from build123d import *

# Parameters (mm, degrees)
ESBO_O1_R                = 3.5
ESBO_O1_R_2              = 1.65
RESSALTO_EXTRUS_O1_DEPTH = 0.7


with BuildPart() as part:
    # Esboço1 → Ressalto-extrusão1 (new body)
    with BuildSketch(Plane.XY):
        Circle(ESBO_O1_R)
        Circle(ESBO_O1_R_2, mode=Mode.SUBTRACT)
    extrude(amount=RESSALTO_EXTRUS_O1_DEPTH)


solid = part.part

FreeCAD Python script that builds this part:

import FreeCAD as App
import Part
import Sketcher

doc = App.newDocument("Part")
body = doc.addObject("PartDesign::Body", "Body")

# Sketch on XY plane
sketch1 = body.newObject("Sketcher::SketchObject", "Sketch")
sketch1.AttachmentSupport = (doc.getObject("XY_Plane"), [""])
sketch1.MapMode = "FlatFace"
sketch1.addGeometry([
    Part.Circle(App.Vector(0, 0, 0), App.Vector(0, 0, 1), 3.5),
    Part.Circle(App.Vector(0, 0, 0), App.Vector(0, 0, 1), 1.6),
], False)
sketch1.addConstraint([
    Sketcher.Constraint("Coincident", 0, 3, -1, 1),
    Sketcher.Constraint("Coincident", 1, 3, -1, 1),
    Sketcher.Constraint("Diameter", 0, 7.0),
    Sketcher.Constraint("Diameter", 1, 3.3),
])
pad1 = body.newObject("PartDesign::Pad", "Pad")
pad1.Profile = sketch1
pad1.Length = 0.7

doc.recompute()
